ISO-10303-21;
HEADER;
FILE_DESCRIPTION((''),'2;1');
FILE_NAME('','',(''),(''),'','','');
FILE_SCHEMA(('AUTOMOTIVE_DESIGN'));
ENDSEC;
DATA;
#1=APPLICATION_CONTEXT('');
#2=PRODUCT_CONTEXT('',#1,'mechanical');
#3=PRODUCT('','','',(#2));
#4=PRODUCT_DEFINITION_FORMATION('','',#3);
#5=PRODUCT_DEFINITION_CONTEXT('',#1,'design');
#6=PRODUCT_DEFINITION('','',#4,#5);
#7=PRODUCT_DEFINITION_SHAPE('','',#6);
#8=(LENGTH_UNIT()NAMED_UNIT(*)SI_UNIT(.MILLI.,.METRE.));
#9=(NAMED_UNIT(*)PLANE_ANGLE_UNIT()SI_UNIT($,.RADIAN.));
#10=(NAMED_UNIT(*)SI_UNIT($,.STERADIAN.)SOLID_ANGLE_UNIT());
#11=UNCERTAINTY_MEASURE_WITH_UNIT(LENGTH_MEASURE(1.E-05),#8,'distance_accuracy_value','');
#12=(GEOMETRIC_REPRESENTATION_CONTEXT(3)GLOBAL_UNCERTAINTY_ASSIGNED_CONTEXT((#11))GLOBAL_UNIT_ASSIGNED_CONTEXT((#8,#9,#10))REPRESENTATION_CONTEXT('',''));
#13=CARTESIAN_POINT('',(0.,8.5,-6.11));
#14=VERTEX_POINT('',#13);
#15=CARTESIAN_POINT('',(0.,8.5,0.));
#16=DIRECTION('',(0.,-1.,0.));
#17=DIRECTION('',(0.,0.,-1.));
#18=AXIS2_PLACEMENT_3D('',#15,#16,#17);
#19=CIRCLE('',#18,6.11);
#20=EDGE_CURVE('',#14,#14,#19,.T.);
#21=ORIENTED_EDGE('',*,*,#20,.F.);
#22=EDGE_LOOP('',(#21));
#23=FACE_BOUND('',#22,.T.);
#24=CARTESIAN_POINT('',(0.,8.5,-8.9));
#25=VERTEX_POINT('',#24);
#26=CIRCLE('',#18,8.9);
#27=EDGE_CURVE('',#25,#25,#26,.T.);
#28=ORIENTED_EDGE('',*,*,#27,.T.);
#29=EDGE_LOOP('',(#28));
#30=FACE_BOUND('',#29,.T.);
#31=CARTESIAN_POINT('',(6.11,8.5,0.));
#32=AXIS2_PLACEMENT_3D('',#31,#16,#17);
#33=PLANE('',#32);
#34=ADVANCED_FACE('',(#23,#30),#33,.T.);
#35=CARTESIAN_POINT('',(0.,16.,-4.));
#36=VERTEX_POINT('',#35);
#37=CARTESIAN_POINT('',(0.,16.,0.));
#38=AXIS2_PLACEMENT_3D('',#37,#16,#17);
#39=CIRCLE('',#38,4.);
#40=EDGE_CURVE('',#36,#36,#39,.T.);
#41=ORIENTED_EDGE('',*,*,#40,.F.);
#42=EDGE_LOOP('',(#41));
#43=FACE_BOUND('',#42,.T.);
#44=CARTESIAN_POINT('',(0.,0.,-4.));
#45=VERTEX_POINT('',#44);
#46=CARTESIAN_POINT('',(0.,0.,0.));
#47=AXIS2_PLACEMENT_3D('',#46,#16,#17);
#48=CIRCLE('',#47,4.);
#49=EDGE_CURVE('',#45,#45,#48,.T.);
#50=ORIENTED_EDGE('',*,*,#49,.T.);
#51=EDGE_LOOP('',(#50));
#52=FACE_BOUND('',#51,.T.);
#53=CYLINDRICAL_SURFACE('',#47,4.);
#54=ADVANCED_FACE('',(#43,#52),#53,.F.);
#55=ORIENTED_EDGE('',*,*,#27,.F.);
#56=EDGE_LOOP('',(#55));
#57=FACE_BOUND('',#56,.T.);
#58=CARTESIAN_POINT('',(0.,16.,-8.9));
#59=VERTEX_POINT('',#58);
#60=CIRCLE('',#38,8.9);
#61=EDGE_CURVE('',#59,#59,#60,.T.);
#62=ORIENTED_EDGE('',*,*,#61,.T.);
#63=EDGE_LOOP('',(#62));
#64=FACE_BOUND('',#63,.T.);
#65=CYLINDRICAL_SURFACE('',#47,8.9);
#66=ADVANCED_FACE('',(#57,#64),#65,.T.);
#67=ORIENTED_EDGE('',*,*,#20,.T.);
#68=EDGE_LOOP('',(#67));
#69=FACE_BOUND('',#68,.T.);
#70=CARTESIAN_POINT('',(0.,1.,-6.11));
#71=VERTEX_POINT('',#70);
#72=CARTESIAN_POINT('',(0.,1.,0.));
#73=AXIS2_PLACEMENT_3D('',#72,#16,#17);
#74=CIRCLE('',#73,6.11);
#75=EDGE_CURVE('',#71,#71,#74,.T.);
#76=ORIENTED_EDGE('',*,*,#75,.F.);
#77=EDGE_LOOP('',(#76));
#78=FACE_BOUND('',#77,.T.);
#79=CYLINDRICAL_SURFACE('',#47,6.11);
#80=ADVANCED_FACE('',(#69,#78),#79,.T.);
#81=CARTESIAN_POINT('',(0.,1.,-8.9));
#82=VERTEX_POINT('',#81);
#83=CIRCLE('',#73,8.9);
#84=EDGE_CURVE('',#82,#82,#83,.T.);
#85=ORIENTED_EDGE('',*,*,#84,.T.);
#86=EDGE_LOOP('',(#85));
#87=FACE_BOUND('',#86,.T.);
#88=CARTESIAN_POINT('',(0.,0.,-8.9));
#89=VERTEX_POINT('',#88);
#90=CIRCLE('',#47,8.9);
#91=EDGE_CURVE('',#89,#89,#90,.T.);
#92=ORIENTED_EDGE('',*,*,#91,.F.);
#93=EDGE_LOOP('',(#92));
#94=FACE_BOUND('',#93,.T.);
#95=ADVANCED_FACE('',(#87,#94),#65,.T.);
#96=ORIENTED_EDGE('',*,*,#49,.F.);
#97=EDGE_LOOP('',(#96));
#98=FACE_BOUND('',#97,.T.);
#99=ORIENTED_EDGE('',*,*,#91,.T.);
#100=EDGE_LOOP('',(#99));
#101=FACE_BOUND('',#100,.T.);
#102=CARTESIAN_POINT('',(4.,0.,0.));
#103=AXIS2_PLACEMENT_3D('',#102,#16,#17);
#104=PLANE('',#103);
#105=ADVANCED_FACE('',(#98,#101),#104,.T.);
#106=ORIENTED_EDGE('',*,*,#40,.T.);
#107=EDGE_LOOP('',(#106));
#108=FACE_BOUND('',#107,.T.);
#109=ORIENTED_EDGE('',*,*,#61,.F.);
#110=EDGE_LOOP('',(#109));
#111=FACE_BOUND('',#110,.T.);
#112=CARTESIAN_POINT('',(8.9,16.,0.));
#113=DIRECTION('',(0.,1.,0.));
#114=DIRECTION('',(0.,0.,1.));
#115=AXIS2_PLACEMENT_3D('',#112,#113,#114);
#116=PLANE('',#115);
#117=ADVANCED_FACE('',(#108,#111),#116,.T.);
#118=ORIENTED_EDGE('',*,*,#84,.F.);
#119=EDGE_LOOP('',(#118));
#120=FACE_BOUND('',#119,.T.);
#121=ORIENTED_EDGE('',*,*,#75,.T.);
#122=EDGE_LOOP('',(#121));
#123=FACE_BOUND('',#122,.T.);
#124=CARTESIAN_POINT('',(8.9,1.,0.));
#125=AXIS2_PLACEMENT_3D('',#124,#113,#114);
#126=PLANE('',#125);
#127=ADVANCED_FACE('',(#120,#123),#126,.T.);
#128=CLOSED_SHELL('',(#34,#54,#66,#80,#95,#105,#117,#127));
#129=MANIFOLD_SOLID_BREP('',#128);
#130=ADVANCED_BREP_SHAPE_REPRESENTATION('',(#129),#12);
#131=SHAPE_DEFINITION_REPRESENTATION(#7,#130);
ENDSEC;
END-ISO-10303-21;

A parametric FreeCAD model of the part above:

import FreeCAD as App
import Part
import Sketcher

V = App.Vector


def add_polygon(sketch, points):
    """Adds a closed chain of lines whose ends are joined by coincident constraints."""
    first, n = sketch.GeometryCount, len(points)
    for a, b in zip(points, points[1:] + points[:1]):
        sketch.addGeometry(Part.LineSegment(App.Vector(*a, 0), App.Vector(*b, 0)), False)
    for i in range(n):
        sketch.addConstraint(Sketcher.Constraint("Coincident", first + i, 2, first + (i + 1) % n, 1))

doc = App.newDocument("Part")
body = doc.addObject("PartDesign::Body", "Body")

# Sketch on XY plane
sketch1 = body.newObject("Sketcher::SketchObject", "Sketch")
sketch1.AttachmentSupport = (doc.getObject("XY_Plane"), [""])
sketch1.MapMode = "FlatFace"
add_polygon(sketch1, [(4, 0), (8.9, 0), (8.9, 1), (6.1, 1), (6.1, 8.5), (8.9, 8.5), (8.9, 16), (4, 16)])  # lines 0-7
sketch1.addConstraint([
    Sketcher.Constraint("Horizontal", 0),
    Sketcher.Constraint("Vertical", 1),
    Sketcher.Constraint("Horizontal", 2),
    Sketcher.Constraint("Vertical", 3),
    Sketcher.Constraint("Horizontal", 4),
    Sketcher.Constraint("Vertical", 5),
    Sketcher.Constraint("Horizontal", 6),
    Sketcher.Constraint("Vertical", 7),
    Sketcher.Constraint("PointOnObject", 0, 2, -1),
    Sketcher.Constraint("Vertical", 1, 2, 4, 2),
    Sketcher.Constraint("Equal", 3, 5),
    Sketcher.Constraint("DistanceY", 1, 1, 1, 2, 1.0),
    Sketcher.Constraint("DistanceY", 7, 2, 7, 1, 16.0),
    Sketcher.Constraint("DistanceX", 0, 1, 0, 2, 4.9),
    Sketcher.Constraint("DistanceX", -1, 1, 6, 2, 4.0),
    Sketcher.Constraint("DistanceX", 2, 2, 2, 1, 2.79),
])
revolution = body.newObject("PartDesign::Revolution", "Revolution")
revolution.Profile = sketch1
revolution.ReferenceAxis = (sketch1, ["V_Axis"])
revolution.Angle = 360

doc.recompute()
